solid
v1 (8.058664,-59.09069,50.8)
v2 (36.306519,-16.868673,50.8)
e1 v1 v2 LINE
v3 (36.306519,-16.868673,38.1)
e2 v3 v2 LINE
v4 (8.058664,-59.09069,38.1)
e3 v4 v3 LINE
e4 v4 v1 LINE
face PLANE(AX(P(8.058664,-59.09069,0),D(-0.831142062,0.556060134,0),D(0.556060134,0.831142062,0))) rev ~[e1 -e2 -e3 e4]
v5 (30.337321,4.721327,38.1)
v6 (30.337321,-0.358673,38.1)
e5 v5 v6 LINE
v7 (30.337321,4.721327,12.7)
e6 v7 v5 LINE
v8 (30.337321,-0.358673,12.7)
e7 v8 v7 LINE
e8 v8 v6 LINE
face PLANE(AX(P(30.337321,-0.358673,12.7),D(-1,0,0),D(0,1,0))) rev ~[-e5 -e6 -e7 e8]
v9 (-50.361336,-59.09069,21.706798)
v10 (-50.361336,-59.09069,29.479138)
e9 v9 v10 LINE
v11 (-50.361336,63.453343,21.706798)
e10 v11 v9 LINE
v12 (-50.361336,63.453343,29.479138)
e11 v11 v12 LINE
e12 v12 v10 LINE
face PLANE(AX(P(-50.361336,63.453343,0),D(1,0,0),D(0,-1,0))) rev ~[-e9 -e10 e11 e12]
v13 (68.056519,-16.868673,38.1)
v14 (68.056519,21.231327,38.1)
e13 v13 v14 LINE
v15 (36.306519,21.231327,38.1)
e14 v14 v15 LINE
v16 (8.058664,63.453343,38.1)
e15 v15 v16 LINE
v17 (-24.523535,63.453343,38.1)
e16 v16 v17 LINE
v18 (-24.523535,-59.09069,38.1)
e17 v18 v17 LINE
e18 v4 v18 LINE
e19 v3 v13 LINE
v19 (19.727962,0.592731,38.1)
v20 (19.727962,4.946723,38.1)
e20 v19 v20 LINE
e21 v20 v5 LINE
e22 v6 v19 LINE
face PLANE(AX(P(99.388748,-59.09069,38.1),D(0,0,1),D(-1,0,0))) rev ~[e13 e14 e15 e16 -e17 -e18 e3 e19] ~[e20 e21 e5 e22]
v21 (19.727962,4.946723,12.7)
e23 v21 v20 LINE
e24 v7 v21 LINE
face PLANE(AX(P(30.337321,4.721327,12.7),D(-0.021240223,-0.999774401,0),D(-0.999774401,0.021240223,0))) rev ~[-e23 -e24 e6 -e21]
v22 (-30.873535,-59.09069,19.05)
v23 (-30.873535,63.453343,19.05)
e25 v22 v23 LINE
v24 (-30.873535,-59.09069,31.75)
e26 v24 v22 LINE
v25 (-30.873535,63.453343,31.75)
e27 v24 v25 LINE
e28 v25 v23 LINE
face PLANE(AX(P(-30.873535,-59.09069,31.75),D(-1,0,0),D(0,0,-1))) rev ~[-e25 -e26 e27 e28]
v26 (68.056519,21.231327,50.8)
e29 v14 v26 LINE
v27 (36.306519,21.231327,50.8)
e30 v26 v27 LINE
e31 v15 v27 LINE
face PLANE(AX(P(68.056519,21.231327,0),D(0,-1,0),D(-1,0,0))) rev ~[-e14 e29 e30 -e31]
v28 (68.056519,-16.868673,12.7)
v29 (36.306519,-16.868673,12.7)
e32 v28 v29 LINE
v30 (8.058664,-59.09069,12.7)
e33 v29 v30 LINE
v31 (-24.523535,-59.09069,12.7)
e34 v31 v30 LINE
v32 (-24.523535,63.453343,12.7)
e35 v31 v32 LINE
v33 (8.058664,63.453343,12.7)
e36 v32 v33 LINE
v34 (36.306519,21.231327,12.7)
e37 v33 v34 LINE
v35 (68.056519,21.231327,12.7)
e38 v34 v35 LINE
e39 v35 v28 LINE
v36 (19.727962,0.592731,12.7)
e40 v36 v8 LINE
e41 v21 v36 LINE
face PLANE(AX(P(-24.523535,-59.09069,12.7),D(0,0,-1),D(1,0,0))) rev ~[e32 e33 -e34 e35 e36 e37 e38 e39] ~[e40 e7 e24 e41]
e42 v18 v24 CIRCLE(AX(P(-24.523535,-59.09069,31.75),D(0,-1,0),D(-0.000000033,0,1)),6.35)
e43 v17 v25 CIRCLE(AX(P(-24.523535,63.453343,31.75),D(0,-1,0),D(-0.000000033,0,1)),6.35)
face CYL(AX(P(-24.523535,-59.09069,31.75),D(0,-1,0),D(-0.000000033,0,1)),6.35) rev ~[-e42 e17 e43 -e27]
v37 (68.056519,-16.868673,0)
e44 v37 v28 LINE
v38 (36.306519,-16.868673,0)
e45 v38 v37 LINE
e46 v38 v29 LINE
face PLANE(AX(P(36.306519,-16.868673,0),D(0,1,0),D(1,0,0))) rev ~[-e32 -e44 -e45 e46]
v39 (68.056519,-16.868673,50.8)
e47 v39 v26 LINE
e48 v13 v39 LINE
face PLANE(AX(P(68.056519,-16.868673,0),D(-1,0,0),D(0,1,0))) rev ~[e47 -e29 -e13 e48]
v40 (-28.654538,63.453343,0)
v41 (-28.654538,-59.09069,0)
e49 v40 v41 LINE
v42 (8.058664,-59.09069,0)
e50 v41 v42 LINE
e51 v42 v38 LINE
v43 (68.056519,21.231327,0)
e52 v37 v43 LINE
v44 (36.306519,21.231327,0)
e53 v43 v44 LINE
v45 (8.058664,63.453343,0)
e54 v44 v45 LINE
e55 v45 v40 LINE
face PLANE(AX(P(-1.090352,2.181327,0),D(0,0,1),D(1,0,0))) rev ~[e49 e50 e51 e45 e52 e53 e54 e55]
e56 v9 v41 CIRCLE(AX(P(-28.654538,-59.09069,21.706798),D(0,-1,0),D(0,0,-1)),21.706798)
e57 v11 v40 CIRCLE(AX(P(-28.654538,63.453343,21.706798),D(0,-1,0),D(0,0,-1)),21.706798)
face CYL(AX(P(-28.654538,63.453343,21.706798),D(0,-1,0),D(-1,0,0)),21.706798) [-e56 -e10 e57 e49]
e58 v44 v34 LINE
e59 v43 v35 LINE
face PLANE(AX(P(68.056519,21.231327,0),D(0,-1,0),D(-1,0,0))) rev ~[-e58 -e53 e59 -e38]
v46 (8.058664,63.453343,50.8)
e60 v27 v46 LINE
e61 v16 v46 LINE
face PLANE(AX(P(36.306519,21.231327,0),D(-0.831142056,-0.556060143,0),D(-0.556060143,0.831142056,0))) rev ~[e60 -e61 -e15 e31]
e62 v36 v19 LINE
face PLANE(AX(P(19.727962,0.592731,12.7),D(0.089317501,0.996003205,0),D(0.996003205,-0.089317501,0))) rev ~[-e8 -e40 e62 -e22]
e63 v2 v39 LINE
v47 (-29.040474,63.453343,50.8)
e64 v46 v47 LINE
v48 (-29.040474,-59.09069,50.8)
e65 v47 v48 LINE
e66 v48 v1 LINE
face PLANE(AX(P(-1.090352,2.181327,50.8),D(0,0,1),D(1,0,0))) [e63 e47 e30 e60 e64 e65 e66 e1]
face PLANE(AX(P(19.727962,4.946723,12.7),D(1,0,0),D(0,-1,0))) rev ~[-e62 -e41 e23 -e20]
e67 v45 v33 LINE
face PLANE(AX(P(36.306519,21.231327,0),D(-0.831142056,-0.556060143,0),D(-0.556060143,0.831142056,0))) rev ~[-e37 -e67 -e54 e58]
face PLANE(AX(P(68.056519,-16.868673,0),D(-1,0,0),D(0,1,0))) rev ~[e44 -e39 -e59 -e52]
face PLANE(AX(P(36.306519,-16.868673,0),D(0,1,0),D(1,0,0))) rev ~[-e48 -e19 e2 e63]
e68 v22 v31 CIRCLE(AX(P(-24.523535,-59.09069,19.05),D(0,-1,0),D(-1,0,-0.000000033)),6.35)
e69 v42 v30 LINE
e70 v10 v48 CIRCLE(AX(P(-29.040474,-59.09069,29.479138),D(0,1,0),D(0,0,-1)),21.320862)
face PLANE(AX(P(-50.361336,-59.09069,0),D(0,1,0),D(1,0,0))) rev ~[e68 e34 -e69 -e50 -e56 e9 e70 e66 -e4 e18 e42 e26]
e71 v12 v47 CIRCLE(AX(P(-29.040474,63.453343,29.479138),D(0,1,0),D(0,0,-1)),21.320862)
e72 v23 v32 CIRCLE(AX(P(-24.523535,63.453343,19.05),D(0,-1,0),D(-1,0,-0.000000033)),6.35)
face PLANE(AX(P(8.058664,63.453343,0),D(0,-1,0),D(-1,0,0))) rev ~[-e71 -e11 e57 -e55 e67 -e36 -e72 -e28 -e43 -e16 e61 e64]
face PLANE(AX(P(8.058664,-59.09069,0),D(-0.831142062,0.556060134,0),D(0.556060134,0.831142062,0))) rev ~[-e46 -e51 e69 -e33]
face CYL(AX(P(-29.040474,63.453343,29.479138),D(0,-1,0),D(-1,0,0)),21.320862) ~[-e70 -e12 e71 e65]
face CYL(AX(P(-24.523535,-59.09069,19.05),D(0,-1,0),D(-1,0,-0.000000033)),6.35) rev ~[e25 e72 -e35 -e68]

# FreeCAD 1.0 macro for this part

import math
import FreeCAD as App
import Part
import Sketcher

V = App.Vector
Q = App.Units.Quantity


def edges_at(feature, points):
    """Names of the edges that pass closest to the given points."""
    edges = feature.Shape.Edges
    near = lambda p: min(range(len(edges)), key=lambda i: edges[i].distToShape(Part.Vertex(*p))[0])
    return sorted({f"Edge{near(p) + 1}" for p in points})


def add_polygon(sketch, points):
    """Adds a closed chain of lines whose ends are joined by coincident constraints."""
    first, n = sketch.GeometryCount, len(points)
    for a, b in zip(points, points[1:] + points[:1]):
        sketch.addGeometry(Part.LineSegment(App.Vector(*a, 0), App.Vector(*b, 0)), False)
    for i in range(n):
        sketch.addConstraint(Sketcher.Constraint("Coincident", first + i, 2, first + (i + 1) % n, 1))

doc = App.newDocument("Part")
params = doc.addObject("Spreadsheet::Sheet", "Params")
for row, (alias, value) in enumerate([
    ("sketch1_length", "2 in"),
    ("sketch1_width", "2.3 in"),
    ("sketch1_height", "1.5 in"),
    ("sketch1_width2", "1.25 in"),
    ("pad1_length", "2 in"),
    ("fillet_radius", "21.706798 mm"),
    ("fillet2_radius", "21.320862 mm"),
    ("sketch2_height", "1 in"),
    ("sketch2_radius", "0.25 in"),
    ("pocket1_length", "157.70323 mm"),
    ("sketch3_height", "0.2 in"),
    ("pad2_length", "29.04742 mm"),
], start=1):
    params.set(f"A{row}", alias)
    params.set(f"B{row}", "=" + value)
    params.setAlias(f"B{row}", alias)

body = doc.addObject("PartDesign::Body", "Body")

sketch1 = doc.addObject("Sketcher::SketchObject", "Sketch")
body.addObject(sketch1)
sketch1.AttachmentSupport = (doc.XY_Plane, [""])
sketch1.MapMode = "FlatFace"
add_polygon(sketch1, [(68.056519, -16.868673), (68.056519, 21.231327), (36.306519, 21.231327), (8.058664, 63.453343), (-50.361336, 63.453343), (-50.361336, -59.09069), (8.058664, -59.09069), (36.306519, -16.868673)])
sketch1.addConstraint([
    Sketcher.Constraint("Vertical", 0),
    Sketcher.Constraint("Horizontal", 1),
    Sketcher.Constraint("Horizontal", 3),
    Sketcher.Constraint("Vertical", 4),
    Sketcher.Constraint("Horizontal", 5),
    Sketcher.Constraint("Horizontal", 7),
    Sketcher.Constraint("Vertical", 2, 2, 5, 2),
    Sketcher.Constraint("Vertical", 1, 2, 6, 2),
    Sketcher.Constraint("Equal", 2, 6),
    Sketcher.Constraint("Distance", 2, Q("2 in")),
    Sketcher.Constraint("DistanceX", 3, 2, 3, 1, Q("2.3 in")),
    Sketcher.Constraint("DistanceY", 0, 1, 0, 2, Q("1.5 in")),
    Sketcher.Constraint("DistanceX", 1, 2, 1, 1, Q("1.25 in")),
    Sketcher.Constraint("DistanceY", 4, 2, 4, 1, 122.544033),
    Sketcher.Constraint("DistanceX", -1, 1, 0, 2, 68.056519),
    Sketcher.Constraint("DistanceY", 4, 2, -1, 1, 59.09069),
])
sketch1.setExpression("Constraints[17]", "Params.sketch1_length")
sketch1.setExpression("Constraints[18]", "Params.sketch1_width")
sketch1.setExpression("Constraints[19]", "Params.sketch1_height")
sketch1.setExpression("Constraints[20]", "Params.sketch1_width2")
pad1 = doc.addObject("PartDesign::Pad", "Pad")
body.addObject(pad1)
pad1.Profile = sketch1
pad1.setExpression("Length", "Params.pad1_length")
doc.recompute()

fillet = doc.addObject("PartDesign::Fillet", "Fillet")
body.addObject(fillet)
fillet.Base = (pad1, edges_at(pad1, [(-50.361, 2.181, 0)]))
fillet.setExpression("Radius", "Params.fillet_radius")
doc.recompute()

fillet2 = doc.addObject("PartDesign::Fillet", "Fillet001")
body.addObject(fillet2)
fillet2.Base = (fillet, edges_at(fillet, [(-50.361, 2.181, 50.8)]))
fillet2.setExpression("Radius", "Params.fillet2_radius")

sketch2 = doc.addObject("Sketcher::SketchObject", "Sketch001")
body.addObject(sketch2)
sketch2.AttachmentSupport = (doc.XZ_Plane, [""])
sketch2.MapMode = "FlatFace"
sketch2.AttachmentOffset = App.Placement(V(0, 0, 59.09069), App.Rotation())
sketch2.addGeometry([
    Part.LineSegment(V(99.388748, 12.7, 0), V(99.388748, 38.1, 0)),
    Part.LineSegment(V(99.388748, 38.1, 0), V(-24.523535, 38.1, 0)),
    Part.ArcOfCircle(Part.Circle(V(-24.523535, 31.75, 0), V(0, 0, 1), 6.35), math.radians(90.000002), math.radians(179.999998)),
    Part.LineSegment(V(-30.873535, 31.75, 0), V(-30.873535, 19.05, 0)),
    Part.ArcOfCircle(Part.Circle(V(-24.523535, 19.05, 0), V(0, 0, 1), 6.35), math.radians(-179.999998), math.radians(-90.000002)),
    Part.LineSegment(V(-24.523535, 12.7, 0), V(99.388748, 12.7, 0)),
], False)
sketch2.addConstraint([
    Sketcher.Constraint("Coincident", 0, 2, 1, 1),
    Sketcher.Constraint("Tangent", 1, 2, 2, 1),
    Sketcher.Constraint("Tangent", 2, 2, 3, 1),
    Sketcher.Constraint("Tangent", 3, 2, 4, 1),
    Sketcher.Constraint("Tangent", 4, 2, 5, 1),
    Sketcher.Constraint("Coincident", 5, 2, 0, 1),
    Sketcher.Constraint("Vertical", 0),
    Sketcher.Constraint("Horizontal", 1),
    Sketcher.Constraint("Vertical", 3),
    Sketcher.Constraint("Horizontal", 5),
    Sketcher.Constraint("Equal", 2, 4),
    Sketcher.Constraint("DistanceY", 0, 1, 0, 2, Q("1 in")),
    Sketcher.Constraint("Radius", 2, Q("0.25 in")),
    Sketcher.Constraint("DistanceY", -1, 1, 0, 2, Q("1.5 in")),
    Sketcher.Constraint("DistanceX", 1, 2, 1, 1, 123.912283),
    Sketcher.Constraint("DistanceX", -1, 1, 0, 2, 99.388748),
])
sketch2.setExpression("Constraints[11]", "Params.sketch2_height")
sketch2.setExpression("Constraints[12]", "Params.sketch2_radius")
pocket1 = doc.addObject("PartDesign::Pocket", "Pocket")
body.addObject(pocket1)
pocket1.Profile = sketch2
pocket1.setExpression("Length", "Params.pocket1_length")

sketch3 = doc.addObject("Sketcher::SketchObject", "Sketch002")
body.addObject(sketch3)
sketch3.AttachmentSupport = (doc.XY_Plane, [""])
sketch3.MapMode = "FlatFace"
sketch3.AttachmentOffset = App.Placement(V(0, 0, 0.5 * 25.4), App.Rotation())
add_polygon(sketch3, [(19.727962, 4.946723), (19.727962, 0.592731), (30.337321, -0.358673), (30.337321, 4.721327)])
sketch3.addConstraint([
    Sketcher.Constraint("Vertical", 0),
    Sketcher.Constraint("Vertical", 2),
    Sketcher.Constraint("DistanceY", 2, 1, 2, 2, Q("0.2 in")),
    Sketcher.Constraint("DistanceY", 0, 2, 0, 1, 4.353992),
    Sketcher.Constraint("DistanceY", -1, 1, 0, 2, 0.592731),
    Sketcher.Constraint("DistanceX", -1, 1, 1, 2, 30.337321),
    Sketcher.Constraint("DistanceX", 0, 2, 1, 2, 10.609359),
    Sketcher.Constraint("Distance", 1, 10.651933),
])
sketch3.setExpression("Constraints[6]", "Params.sketch3_height")
pad2 = doc.addObject("PartDesign::Pad", "Pad001")
body.addObject(pad2)
pad2.Profile = sketch3
pad2.setExpression("Length", "Params.pad2_length")

doc.recompute()
